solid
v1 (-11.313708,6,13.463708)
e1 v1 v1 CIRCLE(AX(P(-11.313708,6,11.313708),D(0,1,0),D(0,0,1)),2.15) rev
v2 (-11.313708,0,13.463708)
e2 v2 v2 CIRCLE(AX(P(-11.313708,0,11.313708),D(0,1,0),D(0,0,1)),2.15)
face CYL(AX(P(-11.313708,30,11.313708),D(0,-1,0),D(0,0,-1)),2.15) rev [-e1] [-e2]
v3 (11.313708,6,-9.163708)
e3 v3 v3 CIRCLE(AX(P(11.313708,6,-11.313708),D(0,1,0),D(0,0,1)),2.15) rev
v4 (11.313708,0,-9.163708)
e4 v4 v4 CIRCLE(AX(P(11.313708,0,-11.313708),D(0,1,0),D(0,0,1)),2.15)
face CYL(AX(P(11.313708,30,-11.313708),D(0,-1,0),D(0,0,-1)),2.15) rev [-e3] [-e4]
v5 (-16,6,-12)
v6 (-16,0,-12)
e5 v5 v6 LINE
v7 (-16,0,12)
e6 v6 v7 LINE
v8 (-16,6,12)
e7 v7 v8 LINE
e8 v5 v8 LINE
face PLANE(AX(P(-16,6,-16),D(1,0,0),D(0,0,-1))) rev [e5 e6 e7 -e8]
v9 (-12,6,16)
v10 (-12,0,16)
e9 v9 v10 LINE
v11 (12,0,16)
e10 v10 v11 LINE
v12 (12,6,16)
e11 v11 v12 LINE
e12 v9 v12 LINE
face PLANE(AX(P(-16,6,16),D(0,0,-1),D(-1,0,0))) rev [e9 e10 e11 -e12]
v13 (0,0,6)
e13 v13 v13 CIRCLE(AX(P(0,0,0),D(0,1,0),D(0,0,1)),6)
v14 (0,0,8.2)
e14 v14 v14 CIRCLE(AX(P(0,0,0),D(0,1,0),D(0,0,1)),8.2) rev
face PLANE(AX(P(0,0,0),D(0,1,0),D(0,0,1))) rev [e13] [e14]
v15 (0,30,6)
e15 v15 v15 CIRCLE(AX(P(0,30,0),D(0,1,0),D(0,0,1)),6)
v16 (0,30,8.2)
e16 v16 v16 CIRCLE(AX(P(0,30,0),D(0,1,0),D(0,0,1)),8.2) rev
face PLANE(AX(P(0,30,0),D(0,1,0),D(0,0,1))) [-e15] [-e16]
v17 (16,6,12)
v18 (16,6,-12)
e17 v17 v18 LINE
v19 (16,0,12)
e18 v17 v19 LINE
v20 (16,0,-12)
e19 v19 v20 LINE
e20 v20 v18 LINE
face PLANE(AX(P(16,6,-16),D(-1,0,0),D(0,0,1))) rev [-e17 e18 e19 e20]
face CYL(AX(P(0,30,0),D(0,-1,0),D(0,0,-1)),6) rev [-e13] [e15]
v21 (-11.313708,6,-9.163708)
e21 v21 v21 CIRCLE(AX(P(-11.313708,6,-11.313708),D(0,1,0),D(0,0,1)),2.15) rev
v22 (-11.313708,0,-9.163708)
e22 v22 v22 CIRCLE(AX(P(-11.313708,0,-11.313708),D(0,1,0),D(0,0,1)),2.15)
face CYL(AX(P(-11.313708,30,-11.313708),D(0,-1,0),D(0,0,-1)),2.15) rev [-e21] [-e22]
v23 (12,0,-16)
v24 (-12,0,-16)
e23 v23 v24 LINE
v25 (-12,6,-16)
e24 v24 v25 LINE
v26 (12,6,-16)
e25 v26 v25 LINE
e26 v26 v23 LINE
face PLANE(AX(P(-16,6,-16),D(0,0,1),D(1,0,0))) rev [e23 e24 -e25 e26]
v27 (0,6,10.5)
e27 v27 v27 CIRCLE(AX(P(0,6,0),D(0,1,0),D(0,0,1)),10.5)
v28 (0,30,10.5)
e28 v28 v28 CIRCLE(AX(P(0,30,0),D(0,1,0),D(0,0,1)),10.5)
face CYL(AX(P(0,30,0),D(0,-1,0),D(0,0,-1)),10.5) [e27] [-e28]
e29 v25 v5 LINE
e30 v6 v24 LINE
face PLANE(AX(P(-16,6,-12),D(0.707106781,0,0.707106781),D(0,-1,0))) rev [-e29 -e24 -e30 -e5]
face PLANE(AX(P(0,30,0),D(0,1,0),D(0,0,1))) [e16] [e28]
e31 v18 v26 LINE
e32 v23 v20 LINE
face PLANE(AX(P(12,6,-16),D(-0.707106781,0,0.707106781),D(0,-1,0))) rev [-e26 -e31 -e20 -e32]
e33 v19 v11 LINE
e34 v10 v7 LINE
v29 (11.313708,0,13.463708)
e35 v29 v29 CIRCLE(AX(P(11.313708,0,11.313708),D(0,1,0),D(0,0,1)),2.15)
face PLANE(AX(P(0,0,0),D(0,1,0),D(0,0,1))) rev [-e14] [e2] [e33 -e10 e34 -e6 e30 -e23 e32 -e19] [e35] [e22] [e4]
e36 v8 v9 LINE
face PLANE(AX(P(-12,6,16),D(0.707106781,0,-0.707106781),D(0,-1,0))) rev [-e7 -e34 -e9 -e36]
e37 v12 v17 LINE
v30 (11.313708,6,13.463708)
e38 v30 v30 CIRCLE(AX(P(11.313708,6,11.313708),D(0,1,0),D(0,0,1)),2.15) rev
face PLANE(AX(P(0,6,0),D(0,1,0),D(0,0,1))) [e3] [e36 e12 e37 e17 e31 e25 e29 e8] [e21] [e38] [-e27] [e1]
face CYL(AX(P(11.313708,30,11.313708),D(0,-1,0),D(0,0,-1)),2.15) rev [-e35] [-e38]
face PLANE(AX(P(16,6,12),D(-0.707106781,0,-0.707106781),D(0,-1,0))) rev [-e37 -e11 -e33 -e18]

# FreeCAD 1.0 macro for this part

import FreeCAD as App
import Part
import Sketcher

V = App.Vector
Q = App.Units.Quantity


def edges_at(feature, points):
    """Names of the edges that pass closest to the given points."""
    edges = feature.Shape.Edges
    near = lambda p: min(range(len(edges)), key=lambda i: edges[i].distToShape(Part.Vertex(*p))[0])
    return sorted({f"Edge{near(p) + 1}" for p in points})


def add_polygon(sketch, points):
    """Adds a closed chain of lines whose ends are joined by coincident constraints."""
    first, n = sketch.GeometryCount, len(points)
    for a, b in zip(points, points[1:] + points[:1]):
        sketch.addGeometry(Part.LineSegment(App.Vector(*a, 0), App.Vector(*b, 0)), False)
    for i in range(n):
        sketch.addConstraint(Sketcher.Constraint("Coincident", first + i, 2, first + (i + 1) % n, 1))

doc = App.newDocument("Part")
body = doc.addObject("PartDesign::Body", "Body")

# Sketch on XZ plane
sketch1 = doc.addObject("Sketcher::SketchObject", "Sketch")
body.addObject(sketch1)
sketch1.AttachmentSupport = (doc.XZ_Plane, [""])
sketch1.MapMode = "FlatFace"
sketch1.addGeometry(Part.Circle(V(0, 0, 0), V(0, 0, 1), 10), False)
sketch1.addGeometry(Part.Circle(V(0, 0, 0), V(0, 0, 1), 6), False)
sketch1.addConstraint(Sketcher.Constraint("Coincident", 0, 3, -1, 1))
sketch1.addConstraint(Sketcher.Constraint("Coincident", 1, 3, -1, 1))
sketch1.addConstraint(Sketcher.Constraint("Diameter", 0, Q("21 mm")))
sketch1.addConstraint(Sketcher.Constraint("Diameter", 1, Q("12 mm")))
pad1 = doc.addObject("PartDesign::Pad", "Pad")
body.addObject(pad1)
pad1.Profile = sketch1
pad1.Length = 30
pad1.Reversed = True

# Sketch on XZ plane
sketch2 = doc.addObject("Sketcher::SketchObject", "Sketch001")
body.addObject(sketch2)
sketch2.AttachmentSupport = (doc.XZ_Plane, [""])
sketch2.MapMode = "FlatFace"
add_polygon(sketch2, [(-16, -16), (-16, 16), (16, 16), (16, -16)])  # lines 0-3
sketch2.addGeometry(Part.Circle(V(0, 0, 0), V(0, 0, 1), 6), False)  # 4
sketch2.addConstraint(Sketcher.Constraint("Vertical", 0))
sketch2.addConstraint(Sketcher.Constraint("Horizontal", 1))
sketch2.addConstraint(Sketcher.Constraint("Vertical", 2))
sketch2.addConstraint(Sketcher.Constraint("Horizontal", 3))
sketch2.addConstraint(Sketcher.Constraint("Coincident", 4, 3, -1, 1))
sketch2.addConstraint(Sketcher.Constraint("Symmetric", 0, 2, 2, 2, -1, 1))
sketch2.addConstraint(Sketcher.Constraint("Equal", 3, 0))
sketch2.addConstraint(Sketcher.Constraint("Diameter", 4, Q("12 mm")))
sketch2.addConstraint(Sketcher.Constraint("DistanceX", 1, 1, 1, 2, Q("32 mm")))
pad2 = doc.addObject("PartDesign::Pad", "Pad001")
body.addObject(pad2)
pad2.Profile = sketch2
pad2.Length = 6
pad2.Reversed = True

# Sketch on XZ plane
sketch3 = doc.addObject("Sketcher::SketchObject", "Sketch002")
body.addObject(sketch3)
sketch3.AttachmentSupport = (doc.XZ_Plane, [""])
sketch3.MapMode = "FlatFace"
sketch3.addGeometry(Part.Circle(V(-11.3, -11.3, 0), V(0, 0, 1), 2.1), False)
sketch3.addGeometry(Part.Circle(V(-11.3, 11.3, 0), V(0, 0, 1), 2.1), False)
sketch3.addGeometry(Part.Circle(V(11.3, 11.3, 0), V(0, 0, 1), 2.1), False)
sketch3.addGeometry(Part.Circle(V(11.3, -11.3, 0), V(0, 0, 1), 2.1), False)
sketch3.addConstraint(Sketcher.Constraint("Equal", 0, 1))
sketch3.addConstraint(Sketcher.Constraint("Equal", 1, 2))
sketch3.addConstraint(Sketcher.Constraint("Equal", 2, 3))
sketch3.addConstraint(Sketcher.Constraint("Symmetric", 0, 3, 2, 3, -1, 1))
sketch3.addConstraint(Sketcher.Constraint("Symmetric", 1, 3, 3, 3, -1, 1))
sketch3.addConstraint(Sketcher.Constraint("Symmetric", 1, 3, 2, 3, -2))
sketch3.addConstraint(Sketcher.Constraint("Diameter", 0, Q("4.3 mm")))
sketch3.addConstraint(Sketcher.Constraint("DistanceX", 0, 3, -1, 1, Q("11.313708 mm")))
sketch3.addConstraint(Sketcher.Constraint("DistanceY", 0, 3, -1, 1, Q("11.313708 mm")))
pocket1 = doc.addObject("PartDesign::Pocket", "Pocket")
body.addObject(pocket1)
pocket1.Profile = sketch3
pocket1.Type = "ThroughAll"
doc.recompute()

chamfer = doc.addObject("PartDesign::Chamfer", "Chamfer")
body.addObject(chamfer)
chamfer.Base = (pocket1, edges_at(pocket1, [
    (16, 3, 16),
    (16, 3, -16),
    (-16, 3, -16),
    (-16, 3, 16),
]))
chamfer.Size = 4

doc.recompute()
